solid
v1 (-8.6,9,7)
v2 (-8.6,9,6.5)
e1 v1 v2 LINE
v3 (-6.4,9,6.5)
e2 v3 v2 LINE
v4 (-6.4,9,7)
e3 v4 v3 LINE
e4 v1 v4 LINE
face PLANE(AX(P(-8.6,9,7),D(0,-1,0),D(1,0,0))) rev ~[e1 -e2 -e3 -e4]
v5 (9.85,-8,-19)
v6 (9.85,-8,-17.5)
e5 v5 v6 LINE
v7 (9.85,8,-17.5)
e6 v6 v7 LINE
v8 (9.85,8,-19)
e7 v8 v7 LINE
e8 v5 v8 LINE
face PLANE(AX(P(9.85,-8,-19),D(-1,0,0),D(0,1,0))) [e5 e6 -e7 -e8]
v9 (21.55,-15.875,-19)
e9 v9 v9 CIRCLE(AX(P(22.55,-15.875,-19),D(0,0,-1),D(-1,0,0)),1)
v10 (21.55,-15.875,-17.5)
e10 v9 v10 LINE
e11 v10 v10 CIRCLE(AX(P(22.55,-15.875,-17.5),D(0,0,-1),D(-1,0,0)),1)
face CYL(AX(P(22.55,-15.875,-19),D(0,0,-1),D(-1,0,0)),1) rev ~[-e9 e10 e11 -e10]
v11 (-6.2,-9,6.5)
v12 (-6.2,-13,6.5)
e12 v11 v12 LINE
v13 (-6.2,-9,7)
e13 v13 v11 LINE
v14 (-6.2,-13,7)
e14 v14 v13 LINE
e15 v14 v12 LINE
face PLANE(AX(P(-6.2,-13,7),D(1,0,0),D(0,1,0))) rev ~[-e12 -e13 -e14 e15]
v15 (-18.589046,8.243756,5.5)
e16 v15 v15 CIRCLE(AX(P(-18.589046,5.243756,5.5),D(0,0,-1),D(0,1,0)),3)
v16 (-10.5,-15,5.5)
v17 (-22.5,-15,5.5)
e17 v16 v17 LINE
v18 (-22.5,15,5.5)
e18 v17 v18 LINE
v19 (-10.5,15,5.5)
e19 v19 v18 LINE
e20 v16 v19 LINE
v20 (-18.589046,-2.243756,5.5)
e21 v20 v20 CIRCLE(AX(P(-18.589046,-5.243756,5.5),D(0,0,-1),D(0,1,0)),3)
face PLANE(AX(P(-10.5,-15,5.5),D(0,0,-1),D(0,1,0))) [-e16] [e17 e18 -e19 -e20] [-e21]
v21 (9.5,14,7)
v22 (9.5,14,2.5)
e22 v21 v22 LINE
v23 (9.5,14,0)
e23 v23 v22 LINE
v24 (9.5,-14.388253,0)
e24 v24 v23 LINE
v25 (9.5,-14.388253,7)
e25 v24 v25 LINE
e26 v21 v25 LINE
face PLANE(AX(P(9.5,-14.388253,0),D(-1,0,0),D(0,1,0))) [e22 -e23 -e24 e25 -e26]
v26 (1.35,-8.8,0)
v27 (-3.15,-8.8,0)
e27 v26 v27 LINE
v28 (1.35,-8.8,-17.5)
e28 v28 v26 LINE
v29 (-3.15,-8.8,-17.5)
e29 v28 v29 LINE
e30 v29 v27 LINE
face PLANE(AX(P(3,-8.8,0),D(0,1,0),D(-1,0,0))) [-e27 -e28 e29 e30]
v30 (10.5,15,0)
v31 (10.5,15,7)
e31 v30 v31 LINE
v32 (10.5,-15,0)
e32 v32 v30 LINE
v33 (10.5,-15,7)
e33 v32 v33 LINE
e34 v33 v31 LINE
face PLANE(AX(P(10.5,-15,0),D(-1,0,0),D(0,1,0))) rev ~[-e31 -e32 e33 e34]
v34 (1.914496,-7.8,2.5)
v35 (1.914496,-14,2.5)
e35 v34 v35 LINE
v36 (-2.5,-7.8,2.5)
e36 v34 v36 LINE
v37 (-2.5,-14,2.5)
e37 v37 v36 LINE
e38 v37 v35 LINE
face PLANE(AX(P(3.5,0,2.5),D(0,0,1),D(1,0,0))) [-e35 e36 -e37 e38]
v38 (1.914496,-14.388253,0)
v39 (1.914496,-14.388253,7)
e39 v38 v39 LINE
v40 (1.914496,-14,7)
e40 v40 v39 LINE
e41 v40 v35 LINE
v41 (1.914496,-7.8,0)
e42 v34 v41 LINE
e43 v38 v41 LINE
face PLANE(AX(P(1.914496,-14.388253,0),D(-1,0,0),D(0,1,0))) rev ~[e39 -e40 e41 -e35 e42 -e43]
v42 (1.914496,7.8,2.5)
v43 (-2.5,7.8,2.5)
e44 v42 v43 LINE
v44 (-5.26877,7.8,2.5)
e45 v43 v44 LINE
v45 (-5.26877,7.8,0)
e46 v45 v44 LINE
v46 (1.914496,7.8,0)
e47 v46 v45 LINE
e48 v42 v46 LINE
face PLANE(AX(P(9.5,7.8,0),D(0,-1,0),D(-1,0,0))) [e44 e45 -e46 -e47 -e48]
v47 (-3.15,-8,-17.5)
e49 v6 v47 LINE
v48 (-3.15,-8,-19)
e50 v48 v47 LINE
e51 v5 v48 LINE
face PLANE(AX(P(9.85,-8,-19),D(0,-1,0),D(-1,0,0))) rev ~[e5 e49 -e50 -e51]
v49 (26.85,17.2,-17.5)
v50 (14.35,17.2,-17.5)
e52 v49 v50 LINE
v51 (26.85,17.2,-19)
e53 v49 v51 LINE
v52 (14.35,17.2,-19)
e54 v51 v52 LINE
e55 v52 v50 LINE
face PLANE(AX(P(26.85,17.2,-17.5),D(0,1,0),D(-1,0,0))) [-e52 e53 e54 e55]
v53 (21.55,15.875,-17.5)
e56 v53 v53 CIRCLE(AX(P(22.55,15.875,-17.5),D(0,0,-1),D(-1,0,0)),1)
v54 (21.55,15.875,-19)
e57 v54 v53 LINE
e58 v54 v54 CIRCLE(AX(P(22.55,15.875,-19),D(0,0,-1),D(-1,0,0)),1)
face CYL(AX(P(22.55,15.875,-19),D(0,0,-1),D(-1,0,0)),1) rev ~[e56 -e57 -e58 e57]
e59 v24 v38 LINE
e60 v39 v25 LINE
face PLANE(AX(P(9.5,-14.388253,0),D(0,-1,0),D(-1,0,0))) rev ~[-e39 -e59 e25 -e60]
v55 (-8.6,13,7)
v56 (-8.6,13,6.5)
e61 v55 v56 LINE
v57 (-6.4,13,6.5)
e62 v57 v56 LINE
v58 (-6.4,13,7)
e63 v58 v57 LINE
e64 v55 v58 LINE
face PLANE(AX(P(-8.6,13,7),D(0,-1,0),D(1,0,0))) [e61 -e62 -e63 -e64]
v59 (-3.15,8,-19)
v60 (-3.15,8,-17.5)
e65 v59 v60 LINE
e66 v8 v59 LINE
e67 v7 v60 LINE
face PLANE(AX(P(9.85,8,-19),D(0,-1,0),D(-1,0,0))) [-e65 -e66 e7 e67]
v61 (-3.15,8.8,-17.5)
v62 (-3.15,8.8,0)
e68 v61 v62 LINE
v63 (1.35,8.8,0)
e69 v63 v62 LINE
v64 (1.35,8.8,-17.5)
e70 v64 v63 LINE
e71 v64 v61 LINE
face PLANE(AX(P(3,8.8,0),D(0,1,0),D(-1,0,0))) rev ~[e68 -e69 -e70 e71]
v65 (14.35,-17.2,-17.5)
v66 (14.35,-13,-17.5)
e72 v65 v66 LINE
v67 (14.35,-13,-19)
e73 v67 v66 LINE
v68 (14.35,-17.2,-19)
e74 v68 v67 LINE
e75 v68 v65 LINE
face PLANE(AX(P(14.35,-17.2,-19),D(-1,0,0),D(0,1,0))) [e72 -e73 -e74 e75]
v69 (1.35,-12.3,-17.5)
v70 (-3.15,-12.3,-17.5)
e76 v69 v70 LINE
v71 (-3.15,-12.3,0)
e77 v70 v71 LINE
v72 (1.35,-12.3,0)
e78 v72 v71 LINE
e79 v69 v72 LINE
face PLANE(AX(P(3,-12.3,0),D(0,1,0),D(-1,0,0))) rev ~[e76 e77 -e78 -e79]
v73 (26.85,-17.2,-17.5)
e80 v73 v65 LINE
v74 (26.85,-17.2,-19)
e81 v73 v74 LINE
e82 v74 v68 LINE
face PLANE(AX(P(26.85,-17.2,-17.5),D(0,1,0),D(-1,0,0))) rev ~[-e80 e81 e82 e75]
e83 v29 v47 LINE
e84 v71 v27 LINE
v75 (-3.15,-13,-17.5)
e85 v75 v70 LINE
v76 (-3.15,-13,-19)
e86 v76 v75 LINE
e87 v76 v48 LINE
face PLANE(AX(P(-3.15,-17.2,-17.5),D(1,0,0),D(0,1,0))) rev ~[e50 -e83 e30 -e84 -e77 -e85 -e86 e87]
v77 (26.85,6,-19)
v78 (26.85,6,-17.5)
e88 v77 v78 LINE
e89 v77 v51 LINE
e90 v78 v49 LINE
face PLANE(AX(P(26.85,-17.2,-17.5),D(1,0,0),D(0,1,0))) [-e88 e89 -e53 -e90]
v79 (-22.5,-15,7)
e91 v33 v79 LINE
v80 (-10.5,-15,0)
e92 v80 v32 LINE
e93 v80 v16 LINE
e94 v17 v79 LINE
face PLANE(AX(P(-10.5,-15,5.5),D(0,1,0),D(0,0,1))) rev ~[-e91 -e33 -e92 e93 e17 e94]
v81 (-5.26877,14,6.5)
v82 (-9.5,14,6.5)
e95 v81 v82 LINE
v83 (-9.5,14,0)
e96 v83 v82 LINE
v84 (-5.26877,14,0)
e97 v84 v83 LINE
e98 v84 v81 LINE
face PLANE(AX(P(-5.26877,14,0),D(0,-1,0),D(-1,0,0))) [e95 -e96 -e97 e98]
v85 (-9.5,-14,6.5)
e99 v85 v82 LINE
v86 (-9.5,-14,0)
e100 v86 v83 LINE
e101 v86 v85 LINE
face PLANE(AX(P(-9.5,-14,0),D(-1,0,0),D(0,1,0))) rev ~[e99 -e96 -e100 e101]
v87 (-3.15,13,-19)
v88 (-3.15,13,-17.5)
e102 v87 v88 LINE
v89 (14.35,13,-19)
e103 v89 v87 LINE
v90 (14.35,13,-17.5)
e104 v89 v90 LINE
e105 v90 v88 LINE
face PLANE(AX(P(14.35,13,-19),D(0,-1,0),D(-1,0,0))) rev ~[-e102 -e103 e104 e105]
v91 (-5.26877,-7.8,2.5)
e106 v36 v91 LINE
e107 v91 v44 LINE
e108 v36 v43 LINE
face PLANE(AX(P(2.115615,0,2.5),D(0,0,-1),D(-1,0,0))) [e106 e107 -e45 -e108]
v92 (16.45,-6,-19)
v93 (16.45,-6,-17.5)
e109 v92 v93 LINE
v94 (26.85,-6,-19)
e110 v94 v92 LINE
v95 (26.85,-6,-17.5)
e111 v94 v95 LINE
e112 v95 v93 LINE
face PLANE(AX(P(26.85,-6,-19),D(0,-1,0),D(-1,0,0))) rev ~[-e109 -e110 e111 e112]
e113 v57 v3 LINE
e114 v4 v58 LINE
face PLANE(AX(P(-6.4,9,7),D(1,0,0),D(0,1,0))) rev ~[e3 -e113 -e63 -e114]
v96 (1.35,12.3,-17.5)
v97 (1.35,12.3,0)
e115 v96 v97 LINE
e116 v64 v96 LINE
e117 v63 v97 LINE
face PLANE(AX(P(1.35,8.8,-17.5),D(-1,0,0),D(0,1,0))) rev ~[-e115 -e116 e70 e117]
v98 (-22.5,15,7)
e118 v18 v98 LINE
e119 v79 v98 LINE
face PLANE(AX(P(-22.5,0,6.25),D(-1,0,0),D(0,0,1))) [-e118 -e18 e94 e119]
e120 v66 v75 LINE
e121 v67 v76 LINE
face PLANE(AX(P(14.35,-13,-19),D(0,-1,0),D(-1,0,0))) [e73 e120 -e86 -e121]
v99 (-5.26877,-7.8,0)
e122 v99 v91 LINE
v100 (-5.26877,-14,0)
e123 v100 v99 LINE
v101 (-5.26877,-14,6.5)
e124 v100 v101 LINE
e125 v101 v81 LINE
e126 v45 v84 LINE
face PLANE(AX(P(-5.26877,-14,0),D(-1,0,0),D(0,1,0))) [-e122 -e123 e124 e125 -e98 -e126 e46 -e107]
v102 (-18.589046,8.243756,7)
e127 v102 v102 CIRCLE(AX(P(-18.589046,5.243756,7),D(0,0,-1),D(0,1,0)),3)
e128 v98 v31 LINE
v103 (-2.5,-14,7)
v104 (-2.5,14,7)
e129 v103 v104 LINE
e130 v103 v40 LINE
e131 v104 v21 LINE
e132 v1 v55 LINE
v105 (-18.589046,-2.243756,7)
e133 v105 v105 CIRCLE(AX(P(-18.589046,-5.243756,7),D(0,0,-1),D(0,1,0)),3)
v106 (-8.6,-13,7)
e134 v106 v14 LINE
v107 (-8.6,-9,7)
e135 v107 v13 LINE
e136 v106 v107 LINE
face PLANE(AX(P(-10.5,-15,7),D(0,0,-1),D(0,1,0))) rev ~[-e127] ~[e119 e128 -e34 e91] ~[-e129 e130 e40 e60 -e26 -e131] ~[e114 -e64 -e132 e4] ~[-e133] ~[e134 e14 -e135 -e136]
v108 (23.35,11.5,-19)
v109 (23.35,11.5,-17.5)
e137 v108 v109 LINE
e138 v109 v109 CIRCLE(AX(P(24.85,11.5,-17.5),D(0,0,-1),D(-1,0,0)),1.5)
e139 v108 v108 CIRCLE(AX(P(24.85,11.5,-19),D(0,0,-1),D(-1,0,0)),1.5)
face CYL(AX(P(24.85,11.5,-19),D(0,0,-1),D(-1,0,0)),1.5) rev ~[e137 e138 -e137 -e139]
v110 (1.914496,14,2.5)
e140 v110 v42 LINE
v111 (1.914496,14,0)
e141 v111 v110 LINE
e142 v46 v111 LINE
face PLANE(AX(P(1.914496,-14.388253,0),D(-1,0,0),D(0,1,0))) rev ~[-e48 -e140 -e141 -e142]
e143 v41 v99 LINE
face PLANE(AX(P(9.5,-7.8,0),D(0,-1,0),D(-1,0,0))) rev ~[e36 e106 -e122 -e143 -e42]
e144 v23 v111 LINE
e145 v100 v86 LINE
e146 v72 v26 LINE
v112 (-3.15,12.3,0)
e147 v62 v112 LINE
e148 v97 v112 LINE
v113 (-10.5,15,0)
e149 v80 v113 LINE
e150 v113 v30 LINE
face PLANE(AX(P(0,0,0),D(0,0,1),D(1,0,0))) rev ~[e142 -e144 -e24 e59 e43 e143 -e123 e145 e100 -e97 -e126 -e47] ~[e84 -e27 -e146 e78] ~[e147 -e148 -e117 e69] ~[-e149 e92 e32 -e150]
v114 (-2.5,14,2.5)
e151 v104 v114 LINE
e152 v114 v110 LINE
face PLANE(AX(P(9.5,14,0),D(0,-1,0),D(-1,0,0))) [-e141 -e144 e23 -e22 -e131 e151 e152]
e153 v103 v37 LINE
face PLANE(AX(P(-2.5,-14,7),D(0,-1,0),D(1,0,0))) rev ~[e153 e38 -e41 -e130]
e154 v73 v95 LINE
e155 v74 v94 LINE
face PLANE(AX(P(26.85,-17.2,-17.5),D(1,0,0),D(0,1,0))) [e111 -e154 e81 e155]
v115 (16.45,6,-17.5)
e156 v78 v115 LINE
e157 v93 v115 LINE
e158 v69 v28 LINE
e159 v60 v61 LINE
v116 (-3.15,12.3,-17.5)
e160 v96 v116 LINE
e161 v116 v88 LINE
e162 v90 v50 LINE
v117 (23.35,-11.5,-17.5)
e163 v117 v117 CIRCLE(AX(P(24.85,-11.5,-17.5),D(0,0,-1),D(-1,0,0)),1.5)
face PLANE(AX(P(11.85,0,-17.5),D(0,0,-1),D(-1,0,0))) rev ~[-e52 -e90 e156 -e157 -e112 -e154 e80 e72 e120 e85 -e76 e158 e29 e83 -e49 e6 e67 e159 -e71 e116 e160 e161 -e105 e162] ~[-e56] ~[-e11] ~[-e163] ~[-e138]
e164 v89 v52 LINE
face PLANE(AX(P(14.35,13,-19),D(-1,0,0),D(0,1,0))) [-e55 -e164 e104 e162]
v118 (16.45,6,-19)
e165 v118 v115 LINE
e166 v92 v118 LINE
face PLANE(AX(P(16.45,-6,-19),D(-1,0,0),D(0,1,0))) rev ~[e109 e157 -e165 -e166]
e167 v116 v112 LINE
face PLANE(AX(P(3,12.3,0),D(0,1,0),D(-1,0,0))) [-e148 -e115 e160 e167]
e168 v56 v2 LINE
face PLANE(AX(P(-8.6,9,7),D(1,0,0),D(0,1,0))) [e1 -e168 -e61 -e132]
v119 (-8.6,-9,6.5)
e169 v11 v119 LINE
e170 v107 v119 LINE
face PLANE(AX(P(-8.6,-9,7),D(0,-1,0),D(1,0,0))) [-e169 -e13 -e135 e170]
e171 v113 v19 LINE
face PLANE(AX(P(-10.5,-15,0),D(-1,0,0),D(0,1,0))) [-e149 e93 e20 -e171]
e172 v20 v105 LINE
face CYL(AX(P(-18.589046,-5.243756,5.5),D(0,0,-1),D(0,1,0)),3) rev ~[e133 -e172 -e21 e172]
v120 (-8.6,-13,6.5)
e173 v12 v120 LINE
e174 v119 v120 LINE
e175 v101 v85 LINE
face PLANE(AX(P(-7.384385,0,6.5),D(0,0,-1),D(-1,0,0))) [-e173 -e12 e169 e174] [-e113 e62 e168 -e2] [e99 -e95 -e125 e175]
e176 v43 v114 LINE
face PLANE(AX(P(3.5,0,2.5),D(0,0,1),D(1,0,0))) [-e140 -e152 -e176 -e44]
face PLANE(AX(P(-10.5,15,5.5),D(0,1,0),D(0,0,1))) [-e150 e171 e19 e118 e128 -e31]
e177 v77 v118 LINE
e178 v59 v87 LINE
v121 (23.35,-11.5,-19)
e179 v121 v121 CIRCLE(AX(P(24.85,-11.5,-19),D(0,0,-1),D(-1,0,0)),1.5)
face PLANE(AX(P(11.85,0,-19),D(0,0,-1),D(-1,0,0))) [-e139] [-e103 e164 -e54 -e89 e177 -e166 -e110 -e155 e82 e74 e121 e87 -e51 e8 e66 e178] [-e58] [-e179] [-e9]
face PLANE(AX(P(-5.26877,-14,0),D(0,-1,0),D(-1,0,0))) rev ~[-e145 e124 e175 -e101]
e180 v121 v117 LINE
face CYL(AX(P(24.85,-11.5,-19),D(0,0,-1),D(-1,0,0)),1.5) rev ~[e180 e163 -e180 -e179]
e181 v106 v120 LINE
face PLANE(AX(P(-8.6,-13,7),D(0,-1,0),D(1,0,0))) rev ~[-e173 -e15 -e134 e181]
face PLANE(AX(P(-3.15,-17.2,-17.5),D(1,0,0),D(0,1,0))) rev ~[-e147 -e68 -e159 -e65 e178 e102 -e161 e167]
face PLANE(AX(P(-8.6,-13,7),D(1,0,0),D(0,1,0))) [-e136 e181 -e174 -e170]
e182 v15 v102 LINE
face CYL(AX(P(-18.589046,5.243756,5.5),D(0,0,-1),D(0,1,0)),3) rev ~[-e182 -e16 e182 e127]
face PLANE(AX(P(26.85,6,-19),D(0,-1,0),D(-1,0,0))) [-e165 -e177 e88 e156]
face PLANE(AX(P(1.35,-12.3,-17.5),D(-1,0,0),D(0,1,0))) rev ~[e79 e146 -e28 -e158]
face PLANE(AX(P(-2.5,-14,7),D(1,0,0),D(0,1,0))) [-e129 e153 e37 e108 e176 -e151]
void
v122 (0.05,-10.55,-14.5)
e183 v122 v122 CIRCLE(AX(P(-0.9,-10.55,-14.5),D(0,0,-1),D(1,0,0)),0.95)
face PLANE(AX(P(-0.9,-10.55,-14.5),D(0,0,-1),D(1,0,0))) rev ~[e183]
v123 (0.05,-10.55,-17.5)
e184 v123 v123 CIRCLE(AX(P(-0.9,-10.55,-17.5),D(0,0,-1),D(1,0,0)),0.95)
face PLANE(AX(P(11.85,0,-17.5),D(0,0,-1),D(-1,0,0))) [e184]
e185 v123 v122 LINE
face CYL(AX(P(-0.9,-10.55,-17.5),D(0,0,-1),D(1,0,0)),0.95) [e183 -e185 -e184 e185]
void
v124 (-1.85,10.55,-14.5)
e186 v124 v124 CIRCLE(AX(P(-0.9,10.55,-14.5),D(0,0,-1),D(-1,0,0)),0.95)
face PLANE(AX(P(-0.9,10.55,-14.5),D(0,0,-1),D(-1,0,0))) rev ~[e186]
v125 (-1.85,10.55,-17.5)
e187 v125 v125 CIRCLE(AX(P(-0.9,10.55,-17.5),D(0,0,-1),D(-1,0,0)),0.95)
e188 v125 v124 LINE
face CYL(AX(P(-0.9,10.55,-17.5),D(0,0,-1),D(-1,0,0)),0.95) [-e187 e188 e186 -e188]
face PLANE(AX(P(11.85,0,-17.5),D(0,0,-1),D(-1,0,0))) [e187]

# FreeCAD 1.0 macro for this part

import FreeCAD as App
import Part
import Sketcher
Q = App.Units.Quantity


def add_polygon(sketch, points):
    """Adds a closed chain of lines whose ends are joined by coincident constraints."""
    first, n = sketch.GeometryCount, len(points)
    for a, b in zip(points, points[1:] + points[:1]):
        sketch.addGeometry(Part.LineSegment(App.Vector(*a, 0), App.Vector(*b, 0)), False)
    for i in range(n):
        sketch.addConstraint(Sketcher.Constraint("Coincident", first + i, 2, first + (i + 1) % n, 1))

doc = App.newDocument("Part")
params = doc.addObject("Spreadsheet::Sheet", "Params")
for row, (alias, value) in enumerate([
    ("sketch1_width", "21 mm"),
    ("sketch1_height", "30 mm"),
    ("pad1_length", "7 mm"),
    ("sketch2_width", "12 mm"),
    ("sketch2_height", "28 mm"),
    ("pocket1_length", "4.5 mm"),
    ("sketch3_height", "28 mm"),
    ("pocket2_length", "6.5 mm"),
    ("sketch4_width", "7.5 mm"),
    ("sketch4_height", "3.5 mm"),
    ("pad2_length", "17.5 mm"),
    ("sketch5_diameter", "1.9 mm"),
    ("pocket3_length", "3 mm"),
    ("sketch6_height", "3.5 mm"),
    ("sketch6_width", "1.35 mm"),
    ("sketch6_width2", "1.65 mm"),
    ("pocket4_length", "17.5 mm"),
    ("sketch7_height", "4 mm"),
    ("sketch7_width", "2.2 mm"),
    ("sketch7_width2", "2.4 mm"),
    ("pocket5_length", "2 mm"),
    ("sketch8_height", "15.6 mm"),
    ("pocket6_length", "2.5 mm"),
    ("pocket7_length", "10 mm"),
    ("sketch10_width", "30 mm"),
    ("sketch10_height", "34.4 mm"),
    ("pad3_length", "1.5 mm"),
    ("sketch11_width", "13 mm"),
    ("sketch11_height", "16 mm"),
    ("sketch11_height2", "12 mm"),
    ("sketch11_width2", "17.5 mm"),
    ("sketch11_width3", "10.4 mm"),
    ("pocket8_length", "2 mm"),
    ("sketch12_diameter", "2 mm"),
    ("sketch12_diameter2", "3 mm"),
    ("pocket9_length", "2 mm"),
    ("sketch13_width", "30 mm"),
    ("sketch13_height", "1.5 mm"),
    ("pad4_length", "12 mm"),
    ("sketch14_diameter", "6 mm"),
    ("pocket10_length", "10 mm"),
], start=1):
    params.set(f"A{row}", alias)
    params.set(f"B{row}", "=" + value)
    params.setAlias(f"B{row}", alias)

body = doc.addObject("PartDesign::Body", "Body")

# Sketch on XY plane
sketch1 = doc.addObject("Sketcher::SketchObject", "Sketch")
body.addObject(sketch1)
sketch1.AttachmentSupport = (doc.XY_Plane, [""])
sketch1.MapMode = "FlatFace"
add_polygon(sketch1, [(-10, 15), (-10, -15), (10, -15), (10, 15)])  # lines 0-3
sketch1.addConstraint(Sketcher.Constraint("Vertical", 0))
sketch1.addConstraint(Sketcher.Constraint("Horizontal", 1))
sketch1.addConstraint(Sketcher.Constraint("Vertical", 2))
sketch1.addConstraint(Sketcher.Constraint("Horizontal", 3))
sketch1.addConstraint(Sketcher.Constraint("Symmetric", 0, 2, 2, 2, -1, 1))
sketch1.addConstraint(Sketcher.Constraint("DistanceX", 1, 1, 1, 2, Q("21 mm")))
sketch1.addConstraint(Sketcher.Constraint("DistanceY", 0, 2, 0, 1, Q("30 mm")))
sketch1.setExpression("Constraints[9]", "Params.sketch1_width")
sketch1.setExpression("Constraints[10]", "Params.sketch1_height")
pad1 = doc.addObject("PartDesign::Pad", "Pad")
body.addObject(pad1)
pad1.Profile = sketch1
pad1.setExpression("Length", "Params.pad1_length")

# Sketch on XY plane
sketch2 = doc.addObject("Sketcher::SketchObject", "Sketch001")
body.addObject(sketch2)
sketch2.AttachmentSupport = (doc.XY_Plane, [""])
sketch2.MapMode = "FlatFace"
sketch2.AttachmentOffset = App.Placement(App.Vector(0, 0, 7), App.Rotation())
add_polygon(sketch2, [(-2, 14), (-2, -14), (10, -14), (10, 14)])  # lines 0-3
sketch2.addConstraint(Sketcher.Constraint("Vertical", 0))
sketch2.addConstraint(Sketcher.Constraint("Horizontal", 1))
sketch2.addConstraint(Sketcher.Constraint("Vertical", 2))
sketch2.addConstraint(Sketcher.Constraint("Horizontal", 3))
sketch2.addConstraint(Sketcher.Constraint("DistanceX", 1, 1, 1, 2, Q("12 mm")))
sketch2.addConstraint(Sketcher.Constraint("DistanceY", 0, 2, 0, 1, Q("28 mm")))
sketch2.addConstraint(Sketcher.Constraint("DistanceY", 0, 2, -1, 1, Q("14 mm")))
sketch2.addConstraint(Sketcher.Constraint("DistanceX", 0, 2, -1, 1, Q("2.5 mm")))
sketch2.setExpression("Constraints[8]", "Params.sketch2_width")
sketch2.setExpression("Constraints[9]", "Params.sketch2_height")
pocket1 = doc.addObject("PartDesign::Pocket", "Pocket")
body.addObject(pocket1)
pocket1.Profile = sketch2
pocket1.setExpression("Length", "Params.pocket1_length")

# Sketch on XY plane
sketch3 = doc.addObject("Sketcher::SketchObject", "Sketch002")
body.addObject(sketch3)
sketch3.AttachmentSupport = (doc.XY_Plane, [""])
sketch3.MapMode = "FlatFace"
add_polygon(sketch3, [(-5.3, 14), (-5.3, -14), (-9.5, -14), (-9.5, 14)])  # lines 0-3
sketch3.addConstraint(Sketcher.Constraint("Vertical", 0))
sketch3.addConstraint(Sketcher.Constraint("Horizontal", 1))
sketch3.addConstraint(Sketcher.Constraint("Vertical", 2))
sketch3.addConstraint(Sketcher.Constraint("Horizontal", 3))
sketch3.addConstraint(Sketcher.Constraint("DistanceY", 0, 2, 0, 1, Q("28 mm")))
sketch3.addConstraint(Sketcher.Constraint("DistanceY", 0, 2, -1, 1, Q("14 mm")))
sketch3.addConstraint(Sketcher.Constraint("DistanceX", 1, 2, -1, 1, Q("9.5 mm")))
sketch3.addConstraint(Sketcher.Constraint("DistanceX", 1, 2, 1, 1, Q("4.23123 mm")))
sketch3.setExpression("Constraints[8]", "Params.sketch3_height")
pocket2 = doc.addObject("PartDesign::Pocket", "Pocket001")
body.addObject(pocket2)
pocket2.Profile = sketch3
pocket2.setExpression("Length", "Params.pocket2_length")
pocket2.Reversed = True

# Sketch on XY plane
sketch4 = doc.addObject("Sketcher::SketchObject", "Sketch003")
body.addObject(sketch4)
sketch4.AttachmentSupport = (doc.XY_Plane, [""])
sketch4.MapMode = "FlatFace"
add_polygon(sketch4, [(3, 12.3), (3, 8.8), (-4.5, 8.8), (-4.5, 12.3)])  # lines 0-3
add_polygon(sketch4, [(3, -8.8), (3, -12.3), (-4.5, -12.3), (-4.5, -8.8)])  # lines 4-7
sketch4.addConstraint(Sketcher.Constraint("Vertical", 0))
sketch4.addConstraint(Sketcher.Constraint("Horizontal", 1))
sketch4.addConstraint(Sketcher.Constraint("Vertical", 2))
sketch4.addConstraint(Sketcher.Constraint("Horizontal", 3))
sketch4.addConstraint(Sketcher.Constraint("Vertical", 4))
sketch4.addConstraint(Sketcher.Constraint("Horizontal", 5))
sketch4.addConstraint(Sketcher.Constraint("Vertical", 6))
sketch4.addConstraint(Sketcher.Constraint("Horizontal", 7))
sketch4.addConstraint(Sketcher.Constraint("Symmetric", 3, 2, 4, 2, -1))
sketch4.addConstraint(Sketcher.Constraint("Symmetric", 1, 2, 6, 2, -1))
sketch4.addConstraint(Sketcher.Constraint("DistanceX", 1, 2, 1, 1, Q("7.5 mm")))
sketch4.addConstraint(Sketcher.Constraint("DistanceY", 0, 2, 0, 1, Q("3.5 mm")))
sketch4.addConstraint(Sketcher.Constraint("DistanceX", -1, 1, 0, 2, Q("3 mm")))
sketch4.addConstraint(Sketcher.Constraint("DistanceY", -1, 1, 0, 2, Q("8.8 mm")))
sketch4.setExpression("Constraints[18]", "Params.sketch4_width")
sketch4.setExpression("Constraints[19]", "Params.sketch4_height")
pad2 = doc.addObject("PartDesign::Pad", "Pad001")
body.addObject(pad2)
pad2.Profile = sketch4
pad2.setExpression("Length", "Params.pad2_length")
pad2.Reversed = True

# Sketch on XY plane
sketch5 = doc.addObject("Sketcher::SketchObject", "Sketch004")
body.addObject(sketch5)
sketch5.AttachmentSupport = (doc.XY_Plane, [""])
sketch5.MapMode = "FlatFace"
sketch5.AttachmentOffset = App.Placement(App.Vector(0, 0, -17.5), App.Rotation())
sketch5.addGeometry(Part.Circle(App.Vector(-0.9, 10.6, 0), App.Vector(0, 0, 1), 0.9), False)
sketch5.addGeometry(Part.Circle(App.Vector(-0.9, -10.6, 0), App.Vector(0, 0, 1), 0.9), False)
sketch5.addConstraint(Sketcher.Constraint("Equal", 0, 1))
sketch5.addConstraint(Sketcher.Constraint("Symmetric", 0, 3, 1, 3, -1))
sketch5.addConstraint(Sketcher.Constraint("Diameter", 0, Q("1.9 mm")))
sketch5.addConstraint(Sketcher.Constraint("DistanceX", 0, 3, -1, 1, Q("0.9 mm")))
sketch5.addConstraint(Sketcher.Constraint("DistanceY", 1, 3, 0, 3, Q("21.1 mm")))
sketch5.setExpression("Constraints[2]", "Params.sketch5_diameter")
pocket3 = doc.addObject("PartDesign::Pocket", "Pocket002")
body.addObject(pocket3)
pocket3.Profile = sketch5
pocket3.setExpression("Length", "Params.pocket3_length")
pocket3.Reversed = True

# Sketch on XY plane
sketch6 = doc.addObject("Sketcher::SketchObject", "Sketch005")
body.addObject(sketch6)
sketch6.AttachmentSupport = (doc.XY_Plane, [""])
sketch6.MapMode = "FlatFace"
sketch6.AttachmentOffset = App.Placement(App.Vector(0, 0, -17.5), App.Rotation())
add_polygon(sketch6, [(-3.1, -8.8), (-3.1, -12.3), (-4.5, -12.3), (-4.5, -8.8)])  # lines 0-3
add_polygon(sketch6, [(3, -8.8), (3, -12.3), (1.4, -12.3), (1.4, -8.8)])  # lines 4-7
add_polygon(sketch6, [(-3.1, 12.3), (-3.1, 8.8), (-4.5, 8.8), (-4.5, 12.3)])  # lines 8-11
add_polygon(sketch6, [(3, 12.3), (3, 8.8), (1.4, 8.8), (1.4, 12.3)])  # lines 12-15
sketch6.addConstraint(Sketcher.Constraint("Vertical", 0))
sketch6.addConstraint(Sketcher.Constraint("Horizontal", 1))
sketch6.addConstraint(Sketcher.Constraint("Vertical", 2))
sketch6.addConstraint(Sketcher.Constraint("Horizontal", 3))
sketch6.addConstraint(Sketcher.Constraint("Vertical", 4))
sketch6.addConstraint(Sketcher.Constraint("Horizontal", 5))
sketch6.addConstraint(Sketcher.Constraint("Vertical", 6))
sketch6.addConstraint(Sketcher.Constraint("Horizontal", 7))
sketch6.addConstraint(Sketcher.Constraint("Vertical", 8))
sketch6.addConstraint(Sketcher.Constraint("Horizontal", 9))
sketch6.addConstraint(Sketcher.Constraint("Vertical", 10))
sketch6.addConstraint(Sketcher.Constraint("Horizontal", 11))
sketch6.addConstraint(Sketcher.Constraint("Vertical", 12))
sketch6.addConstraint(Sketcher.Constraint("Horizontal", 13))
sketch6.addConstraint(Sketcher.Constraint("Vertical", 14))
sketch6.addConstraint(Sketcher.Constraint("Horizontal", 15))
sketch6.addConstraint(Sketcher.Constraint("Symmetric", 3, 2, 8, 2, -1))
sketch6.addConstraint(Sketcher.Constraint("Symmetric", 1, 2, 10, 2, -1))
sketch6.addConstraint(Sketcher.Constraint("Symmetric", 7, 2, 12, 2, -1))
sketch6.addConstraint(Sketcher.Constraint("Symmetric", 5, 2, 14, 2, -1))
sketch6.addConstraint(Sketcher.Constraint("Horizontal", 1, 2, 4, 2))
sketch6.addConstraint(Sketcher.Constraint("Horizontal", 3, 2, 6, 2))
sketch6.addConstraint(Sketcher.Constraint("DistanceY", 0, 2, 0, 1, Q("3.5 mm")))
sketch6.addConstraint(Sketcher.Constraint("DistanceX", -1, 1, 4, 2, Q("3 mm")))
sketch6.addConstraint(Sketcher.Constraint("DistanceX", 1, 2, 1, 1, Q("1.35 mm")))
sketch6.addConstraint(Sketcher.Constraint("DistanceX", 5, 2, 5, 1, Q("1.65 mm")))
sketch6.addConstraint(Sketcher.Constraint("DistanceY", 0, 2, -1, 1, Q("12.3 mm")))
sketch6.addConstraint(Sketcher.Constraint("DistanceX", 1, 2, -1, 1, Q("4.5 mm")))
sketch6.setExpression("Constraints[38]", "Params.sketch6_height")
sketch6.setExpression("Constraints[40]", "Params.sketch6_width")
sketch6.setExpression("Constraints[41]", "Params.sketch6_width2")
pocket4 = doc.addObject("PartDesign::Pocket", "Pocket003")
body.addObject(pocket4)
pocket4.Profile = sketch6
pocket4.setExpression("Length", "Params.pocket4_length")
pocket4.Reversed = True

# Sketch on XY plane
sketch7 = doc.addObject("Sketcher::SketchObject", "Sketch006")
body.addObject(sketch7)
sketch7.AttachmentSupport = (doc.XY_Plane, [""])
sketch7.MapMode = "FlatFace"
sketch7.AttachmentOffset = App.Placement(App.Vector(0, 0, 7), App.Rotation())
add_polygon(sketch7, [(-8.6, 13), (-8.6, 9), (-6.4, 9), (-6.4, 13)])  # lines 0-3
add_polygon(sketch7, [(-8.6, -9), (-8.6, -13), (-6.2, -13), (-6.2, -9)])  # lines 4-7
sketch7.addConstraint(Sketcher.Constraint("Vertical", 0))
sketch7.addConstraint(Sketcher.Constraint("Horizontal", 1))
sketch7.addConstraint(Sketcher.Constraint("Vertical", 2))
sketch7.addConstraint(Sketcher.Constraint("Horizontal", 3))
sketch7.addConstraint(Sketcher.Constraint("Vertical", 4))
sketch7.addConstraint(Sketcher.Constraint("Horizontal", 5))
sketch7.addConstraint(Sketcher.Constraint("Vertical", 6))
sketch7.addConstraint(Sketcher.Constraint("Horizontal", 7))
sketch7.addConstraint(Sketcher.Constraint("Symmetric", 3, 2, 4, 2, -1))
sketch7.addConstraint(Sketcher.Constraint("Equal", 2, 4))
sketch7.addConstraint(Sketcher.Constraint("DistanceY", 0, 2, 0, 1, Q("4 mm")))
sketch7.addConstraint(Sketcher.Constraint("DistanceX", 1, 1, 1, 2, Q("2.2 mm")))
sketch7.addConstraint(Sketcher.Constraint("DistanceX", 5, 1, 5, 2, Q("2.4 mm")))
sketch7.addConstraint(Sketcher.Constraint("DistanceY", -1, 1, 0, 2, Q("9 mm")))
sketch7.addConstraint(Sketcher.Constraint("DistanceX", 0, 2, -1, 1, Q("8.6 mm")))
sketch7.setExpression("Constraints[18]", "Params.sketch7_height")
sketch7.setExpression("Constraints[19]", "Params.sketch7_width")
sketch7.setExpression("Constraints[20]", "Params.sketch7_width2")
pocket5 = doc.addObject("PartDesign::Pocket", "Pocket004")
body.addObject(pocket5)
pocket5.Profile = sketch7
pocket5.setExpression("Length", "Params.pocket5_length")

# Sketch on XY plane
sketch8 = doc.addObject("Sketcher::SketchObject", "Sketch007")
body.addObject(sketch8)
sketch8.AttachmentSupport = (doc.XY_Plane, [""])
sketch8.MapMode = "FlatFace"
add_polygon(sketch8, [(10, 8), (10, -8), (-5, -8), (-5, 8)])  # lines 0-3
sketch8.addConstraint(Sketcher.Constraint("Vertical", 0))
sketch8.addConstraint(Sketcher.Constraint("Horizontal", 1))
sketch8.addConstraint(Sketcher.Constraint("Vertical", 2))
sketch8.addConstraint(Sketcher.Constraint("Horizontal", 3))
sketch8.addConstraint(Sketcher.Constraint("DistanceY", 0, 2, 0, 1, Q("15.6 mm")))
sketch8.addConstraint(Sketcher.Constraint("DistanceX", -1, 1, 0, 2, Q("9.5 mm")))
sketch8.addConstraint(Sketcher.Constraint("DistanceY", 0, 2, -1, 1, Q("7.8 mm")))
sketch8.addConstraint(Sketcher.Constraint("DistanceX", 1, 2, 1, 1, Q("14.76877 mm")))
sketch8.setExpression("Constraints[8]", "Params.sketch8_height")
pocket6 = doc.addObject("PartDesign::Pocket", "Pocket005")
body.addObject(pocket6)
pocket6.Profile = sketch8
pocket6.setExpression("Length", "Params.pocket6_length")
pocket6.Reversed = True

# Sketch on XY plane
sketch9 = doc.addObject("Sketcher::SketchObject", "Sketch008")
body.addObject(sketch9)
sketch9.AttachmentSupport = (doc.XY_Plane, [""])
sketch9.MapMode = "FlatFace"
add_polygon(sketch9, [(10, 14), (10, -14), (2, -14), (2, 14)])  # lines 0-3
sketch9.addConstraint(Sketcher.Constraint("Vertical", 0))
sketch9.addConstraint(Sketcher.Constraint("Horizontal", 1))
sketch9.addConstraint(Sketcher.Constraint("Vertical", 2))
sketch9.addConstraint(Sketcher.Constraint("Horizontal", 3))
sketch9.addConstraint(Sketcher.Constraint("DistanceY", -1, 1, 2, 2, Q("14 mm")))
sketch9.addConstraint(Sketcher.Constraint("DistanceX", -1, 1, 0, 2, Q("9.5 mm")))
sketch9.addConstraint(Sketcher.Constraint("DistanceX", 1, 2, 1, 1, Q("7.585504 mm")))
sketch9.addConstraint(Sketcher.Constraint("DistanceY", 0, 2, 0, 1, Q("28.388253 mm")))
pocket7 = doc.addObject("PartDesign::Pocket", "Pocket006")
body.addObject(pocket7)
pocket7.Profile = sketch9
pocket7.setExpression("Length", "Params.pocket7_length")
pocket7.Reversed = True

# Sketch on XY plane
sketch10 = doc.addObject("Sketcher::SketchObject", "Sketch009")
body.addObject(sketch10)
sketch10.AttachmentSupport = (doc.XY_Plane, [""])
sketch10.MapMode = "FlatFace"
sketch10.AttachmentOffset = App.Placement(App.Vector(0, 0, -17.5), App.Rotation())
add_polygon(sketch10, [(27, 17), (27, -17), (-3, -17), (-3, 17)])  # lines 0-3
sketch10.addConstraint(Sketcher.Constraint("Vertical", 0))
sketch10.addConstraint(Sketcher.Constraint("Horizontal", 1))
sketch10.addConstraint(Sketcher.Constraint("Vertical", 2))
sketch10.addConstraint(Sketcher.Constraint("Horizontal", 3))
sketch10.addConstraint(Sketcher.Constraint("DistanceX", 1, 2, 1, 1, Q("30 mm")))
sketch10.addConstraint(Sketcher.Constraint("DistanceY", 0, 2, 0, 1, Q("34.4 mm")))
sketch10.addConstraint(Sketcher.Constraint("DistanceY", 0, 2, -1, 1, Q("17.2 mm")))
sketch10.addConstraint(Sketcher.Constraint("DistanceX", -1, 1, 0, 2, Q("26.85 mm")))
sketch10.setExpression("Constraints[8]", "Params.sketch10_width")
sketch10.setExpression("Constraints[9]", "Params.sketch10_height")
pad3 = doc.addObject("PartDesign::Pad", "Pad002")
body.addObject(pad3)
pad3.Profile = sketch10
pad3.setExpression("Length", "Params.pad3_length")
pad3.Reversed = True

# Sketch on XY plane
sketch11 = doc.addObject("Sketcher::SketchObject", "Sketch010")
body.addObject(sketch11)
sketch11.AttachmentSupport = (doc.XY_Plane, [""])
sketch11.MapMode = "FlatFace"
sketch11.AttachmentOffset = App.Placement(App.Vector(0, 0, -19), App.Rotation())
add_polygon(sketch11, [(9.8, 8), (9.8, -8), (-3.1, -8), (-3.1, 8)])  # lines 0-3
add_polygon(sketch11, [(14.3, -13), (14.3, -17.2), (-3.1, -17.2), (-3.1, -13)])  # lines 4-7
add_polygon(sketch11, [(14.3, 17.2), (14.3, 13), (-3.1, 13), (-3.1, 17.2)])  # lines 8-11
add_polygon(sketch11, [(26.9, 6), (26.9, -6), (16.4, -6), (16.4, 6)])  # lines 12-15
sketch11.addConstraint(Sketcher.Constraint("Vertical", 0))
sketch11.addConstraint(Sketcher.Constraint("Horizontal", 1))
sketch11.addConstraint(Sketcher.Constraint("Vertical", 2))
sketch11.addConstraint(Sketcher.Constraint("Horizontal", 3))
sketch11.addConstraint(Sketcher.Constraint("Vertical", 4))
sketch11.addConstraint(Sketcher.Constraint("Horizontal", 5))
sketch11.addConstraint(Sketcher.Constraint("Vertical", 6))
sketch11.addConstraint(Sketcher.Constraint("Horizontal", 7))
sketch11.addConstraint(Sketcher.Constraint("Vertical", 8))
sketch11.addConstraint(Sketcher.Constraint("Horizontal", 9))
sketch11.addConstraint(Sketcher.Constraint("Vertical", 10))
sketch11.addConstraint(Sketcher.Constraint("Horizontal", 11))
sketch11.addConstraint(Sketcher.Constraint("Vertical", 12))
sketch11.addConstraint(Sketcher.Constraint("Horizontal", 13))
sketch11.addConstraint(Sketcher.Constraint("Vertical", 14))
sketch11.addConstraint(Sketcher.Constraint("Horizontal", 15))
sketch11.addConstraint(Sketcher.Constraint("Symmetric", 7, 2, 8, 2, -1))
sketch11.addConstraint(Sketcher.Constraint("Symmetric", 5, 2, 10, 2, -1))
sketch11.addConstraint(Sketcher.Constraint("Vertical", 2, 2, 5, 2))
sketch11.addConstraint(Sketcher.Constraint("DistanceX", 1, 2, 1, 1, Q("13 mm")))
sketch11.addConstraint(Sketcher.Constraint("DistanceY", 0, 2, 0, 1, Q("16 mm")))
sketch11.addConstraint(Sketcher.Constraint("DistanceY", 12, 2, 12, 1, Q("12 mm")))
sketch11.addConstraint(Sketcher.Constraint("DistanceX", 5, 2, 5, 1, Q("17.5 mm")))
sketch11.addConstraint(Sketcher.Constraint("DistanceX", 13, 2, 13, 1, Q("10.4 mm")))
sketch11.addConstraint(Sketcher.Constraint("DistanceY", 4, 2, 4, 1, Q("4.2 mm")))
sketch11.addConstraint(Sketcher.Constraint("DistanceY", 0, 2, -1, 1, Q("8 mm")))
sketch11.addConstraint(Sketcher.Constraint("DistanceY", 6, 2, -1, 1, Q("13 mm")))
sketch11.addConstraint(Sketcher.Constraint("DistanceY", 12, 2, -1, 1, Q("6 mm")))
sketch11.addConstraint(Sketcher.Constraint("DistanceX", 0, 2, 12, 2, Q("17 mm")))
sketch11.addConstraint(Sketcher.Constraint("DistanceX", -1, 1, 0, 2, Q("9.85 mm")))
sketch11.setExpression("Constraints[35]", "Params.sketch11_width")
sketch11.setExpression("Constraints[36]", "Params.sketch11_height")
sketch11.setExpression("Constraints[37]", "Params.sketch11_height2")
sketch11.setExpression("Constraints[38]", "Params.sketch11_width2")
sketch11.setExpression("Constraints[39]", "Params.sketch11_width3")
pocket8 = doc.addObject("PartDesign::Pocket", "Pocket007")
body.addObject(pocket8)
pocket8.Profile = sketch11
pocket8.setExpression("Length", "Params.pocket8_length")
pocket8.Reversed = True

# Sketch on XY plane
sketch12 = doc.addObject("Sketcher::SketchObject", "Sketch011")
body.addObject(sketch12)
sketch12.AttachmentSupport = (doc.XY_Plane, [""])
sketch12.MapMode = "FlatFace"
sketch12.AttachmentOffset = App.Placement(App.Vector(0, 0, -19), App.Rotation())
sketch12.addGeometry(Part.Circle(App.Vector(22.6, -15.9, 0), App.Vector(0, 0, 1), 1), False)
sketch12.addGeometry(Part.Circle(App.Vector(24.9, -11.5, 0), App.Vector(0, 0, 1), 1.5), False)
sketch12.addGeometry(Part.Circle(App.Vector(22.6, 15.9, 0), App.Vector(0, 0, 1), 1), False)
sketch12.addGeometry(Part.Circle(App.Vector(24.9, 11.5, 0), App.Vector(0, 0, 1), 1.5), False)
sketch12.addConstraint(Sketcher.Constraint("Equal", 0, 2))
sketch12.addConstraint(Sketcher.Constraint("Equal", 1, 3))
sketch12.addConstraint(Sketcher.Constraint("Symmetric", 0, 3, 2, 3, -1))
sketch12.addConstraint(Sketcher.Constraint("Symmetric", 1, 3, 3, 3, -1))
sketch12.addConstraint(Sketcher.Constraint("Diameter", 0, Q("2 mm")))
sketch12.addConstraint(Sketcher.Constraint("Diameter", 1, Q("3 mm")))
sketch12.addConstraint(Sketcher.Constraint("DistanceY", 1, 3, 3, 3, Q("23 mm")))
sketch12.addConstraint(Sketcher.Constraint("DistanceX", 0, 3, 1, 3, Q("2.3 mm")))
sketch12.addConstraint(Sketcher.Constraint("DistanceX", -1, 1, 0, 3, Q("22.55 mm")))
sketch12.addConstraint(Sketcher.Constraint("DistanceY", 0, 3, 2, 3, Q("31.75 mm")))
sketch12.setExpression("Constraints[4]", "Params.sketch12_diameter")
sketch12.setExpression("Constraints[5]", "Params.sketch12_diameter2")
pocket9 = doc.addObject("PartDesign::Pocket", "Pocket008")
body.addObject(pocket9)
pocket9.Profile = sketch12
pocket9.setExpression("Length", "Params.pocket9_length")
pocket9.Reversed = True

# Sketch on YZ plane
sketch13 = doc.addObject("Sketcher::SketchObject", "Sketch012")
body.addObject(sketch13)
sketch13.AttachmentSupport = (doc.YZ_Plane, [""])
sketch13.MapMode = "FlatFace"
sketch13.AttachmentOffset = App.Placement(App.Vector(0, 0, -10.5), App.Rotation())
add_polygon(sketch13, [(15, 5.5), (-15, 5.5), (-15, 7), (15, 7)])  # lines 0-3
sketch13.addConstraint(Sketcher.Constraint("Horizontal", 0))
sketch13.addConstraint(Sketcher.Constraint("Vertical", 1))
sketch13.addConstraint(Sketcher.Constraint("Horizontal", 2))
sketch13.addConstraint(Sketcher.Constraint("Vertical", 3))
sketch13.addConstraint(Sketcher.Constraint("DistanceX", 0, 2, 0, 1, Q("30 mm")))
sketch13.addConstraint(Sketcher.Constraint("DistanceY", 1, 1, 1, 2, Q("1.5 mm")))
sketch13.addConstraint(Sketcher.Constraint("DistanceX", 0, 2, -1, 1, Q("15 mm")))
sketch13.addConstraint(Sketcher.Constraint("DistanceY", -1, 1, 1, 2, Q("7 mm")))
sketch13.setExpression("Constraints[8]", "Params.sketch13_width")
sketch13.setExpression("Constraints[9]", "Params.sketch13_height")
pad4 = doc.addObject("PartDesign::Pad", "Pad003")
body.addObject(pad4)
pad4.Profile = sketch13
pad4.setExpression("Length", "Params.pad4_length")
pad4.Reversed = True

# Sketch on XY plane
sketch14 = doc.addObject("Sketcher::SketchObject", "Sketch013")
body.addObject(sketch14)
sketch14.AttachmentSupport = (doc.XY_Plane, [""])
sketch14.MapMode = "FlatFace"
sketch14.AttachmentOffset = App.Placement(App.Vector(0, 0, 5.5), App.Rotation())
sketch14.addGeometry(Part.Circle(App.Vector(-18.6, 5.2, 0), App.Vector(0, 0, 1), 3), False)
sketch14.addGeometry(Part.Circle(App.Vector(-18.6, -5.2, 0), App.Vector(0, 0, 1), 3), False)
sketch14.addConstraint(Sketcher.Constraint("Equal", 0, 1))
sketch14.addConstraint(Sketcher.Constraint("Symmetric", 0, 3, 1, 3, -1))
sketch14.addConstraint(Sketcher.Constraint("Diameter", 0, Q("6 mm")))
sketch14.addConstraint(Sketcher.Constraint("DistanceX", 0, 3, -1, 1, Q("18.589046 mm")))
sketch14.addConstraint(Sketcher.Constraint("DistanceY", -1, 1, 0, 3, Q("5.243756 mm")))
sketch14.setExpression("Constraints[2]", "Params.sketch14_diameter")
pocket10 = doc.addObject("PartDesign::Pocket", "Pocket009")
body.addObject(pocket10)
pocket10.Profile = sketch14
pocket10.setExpression("Length", "Params.pocket10_length")
pocket10.Reversed = True

doc.recompute()
